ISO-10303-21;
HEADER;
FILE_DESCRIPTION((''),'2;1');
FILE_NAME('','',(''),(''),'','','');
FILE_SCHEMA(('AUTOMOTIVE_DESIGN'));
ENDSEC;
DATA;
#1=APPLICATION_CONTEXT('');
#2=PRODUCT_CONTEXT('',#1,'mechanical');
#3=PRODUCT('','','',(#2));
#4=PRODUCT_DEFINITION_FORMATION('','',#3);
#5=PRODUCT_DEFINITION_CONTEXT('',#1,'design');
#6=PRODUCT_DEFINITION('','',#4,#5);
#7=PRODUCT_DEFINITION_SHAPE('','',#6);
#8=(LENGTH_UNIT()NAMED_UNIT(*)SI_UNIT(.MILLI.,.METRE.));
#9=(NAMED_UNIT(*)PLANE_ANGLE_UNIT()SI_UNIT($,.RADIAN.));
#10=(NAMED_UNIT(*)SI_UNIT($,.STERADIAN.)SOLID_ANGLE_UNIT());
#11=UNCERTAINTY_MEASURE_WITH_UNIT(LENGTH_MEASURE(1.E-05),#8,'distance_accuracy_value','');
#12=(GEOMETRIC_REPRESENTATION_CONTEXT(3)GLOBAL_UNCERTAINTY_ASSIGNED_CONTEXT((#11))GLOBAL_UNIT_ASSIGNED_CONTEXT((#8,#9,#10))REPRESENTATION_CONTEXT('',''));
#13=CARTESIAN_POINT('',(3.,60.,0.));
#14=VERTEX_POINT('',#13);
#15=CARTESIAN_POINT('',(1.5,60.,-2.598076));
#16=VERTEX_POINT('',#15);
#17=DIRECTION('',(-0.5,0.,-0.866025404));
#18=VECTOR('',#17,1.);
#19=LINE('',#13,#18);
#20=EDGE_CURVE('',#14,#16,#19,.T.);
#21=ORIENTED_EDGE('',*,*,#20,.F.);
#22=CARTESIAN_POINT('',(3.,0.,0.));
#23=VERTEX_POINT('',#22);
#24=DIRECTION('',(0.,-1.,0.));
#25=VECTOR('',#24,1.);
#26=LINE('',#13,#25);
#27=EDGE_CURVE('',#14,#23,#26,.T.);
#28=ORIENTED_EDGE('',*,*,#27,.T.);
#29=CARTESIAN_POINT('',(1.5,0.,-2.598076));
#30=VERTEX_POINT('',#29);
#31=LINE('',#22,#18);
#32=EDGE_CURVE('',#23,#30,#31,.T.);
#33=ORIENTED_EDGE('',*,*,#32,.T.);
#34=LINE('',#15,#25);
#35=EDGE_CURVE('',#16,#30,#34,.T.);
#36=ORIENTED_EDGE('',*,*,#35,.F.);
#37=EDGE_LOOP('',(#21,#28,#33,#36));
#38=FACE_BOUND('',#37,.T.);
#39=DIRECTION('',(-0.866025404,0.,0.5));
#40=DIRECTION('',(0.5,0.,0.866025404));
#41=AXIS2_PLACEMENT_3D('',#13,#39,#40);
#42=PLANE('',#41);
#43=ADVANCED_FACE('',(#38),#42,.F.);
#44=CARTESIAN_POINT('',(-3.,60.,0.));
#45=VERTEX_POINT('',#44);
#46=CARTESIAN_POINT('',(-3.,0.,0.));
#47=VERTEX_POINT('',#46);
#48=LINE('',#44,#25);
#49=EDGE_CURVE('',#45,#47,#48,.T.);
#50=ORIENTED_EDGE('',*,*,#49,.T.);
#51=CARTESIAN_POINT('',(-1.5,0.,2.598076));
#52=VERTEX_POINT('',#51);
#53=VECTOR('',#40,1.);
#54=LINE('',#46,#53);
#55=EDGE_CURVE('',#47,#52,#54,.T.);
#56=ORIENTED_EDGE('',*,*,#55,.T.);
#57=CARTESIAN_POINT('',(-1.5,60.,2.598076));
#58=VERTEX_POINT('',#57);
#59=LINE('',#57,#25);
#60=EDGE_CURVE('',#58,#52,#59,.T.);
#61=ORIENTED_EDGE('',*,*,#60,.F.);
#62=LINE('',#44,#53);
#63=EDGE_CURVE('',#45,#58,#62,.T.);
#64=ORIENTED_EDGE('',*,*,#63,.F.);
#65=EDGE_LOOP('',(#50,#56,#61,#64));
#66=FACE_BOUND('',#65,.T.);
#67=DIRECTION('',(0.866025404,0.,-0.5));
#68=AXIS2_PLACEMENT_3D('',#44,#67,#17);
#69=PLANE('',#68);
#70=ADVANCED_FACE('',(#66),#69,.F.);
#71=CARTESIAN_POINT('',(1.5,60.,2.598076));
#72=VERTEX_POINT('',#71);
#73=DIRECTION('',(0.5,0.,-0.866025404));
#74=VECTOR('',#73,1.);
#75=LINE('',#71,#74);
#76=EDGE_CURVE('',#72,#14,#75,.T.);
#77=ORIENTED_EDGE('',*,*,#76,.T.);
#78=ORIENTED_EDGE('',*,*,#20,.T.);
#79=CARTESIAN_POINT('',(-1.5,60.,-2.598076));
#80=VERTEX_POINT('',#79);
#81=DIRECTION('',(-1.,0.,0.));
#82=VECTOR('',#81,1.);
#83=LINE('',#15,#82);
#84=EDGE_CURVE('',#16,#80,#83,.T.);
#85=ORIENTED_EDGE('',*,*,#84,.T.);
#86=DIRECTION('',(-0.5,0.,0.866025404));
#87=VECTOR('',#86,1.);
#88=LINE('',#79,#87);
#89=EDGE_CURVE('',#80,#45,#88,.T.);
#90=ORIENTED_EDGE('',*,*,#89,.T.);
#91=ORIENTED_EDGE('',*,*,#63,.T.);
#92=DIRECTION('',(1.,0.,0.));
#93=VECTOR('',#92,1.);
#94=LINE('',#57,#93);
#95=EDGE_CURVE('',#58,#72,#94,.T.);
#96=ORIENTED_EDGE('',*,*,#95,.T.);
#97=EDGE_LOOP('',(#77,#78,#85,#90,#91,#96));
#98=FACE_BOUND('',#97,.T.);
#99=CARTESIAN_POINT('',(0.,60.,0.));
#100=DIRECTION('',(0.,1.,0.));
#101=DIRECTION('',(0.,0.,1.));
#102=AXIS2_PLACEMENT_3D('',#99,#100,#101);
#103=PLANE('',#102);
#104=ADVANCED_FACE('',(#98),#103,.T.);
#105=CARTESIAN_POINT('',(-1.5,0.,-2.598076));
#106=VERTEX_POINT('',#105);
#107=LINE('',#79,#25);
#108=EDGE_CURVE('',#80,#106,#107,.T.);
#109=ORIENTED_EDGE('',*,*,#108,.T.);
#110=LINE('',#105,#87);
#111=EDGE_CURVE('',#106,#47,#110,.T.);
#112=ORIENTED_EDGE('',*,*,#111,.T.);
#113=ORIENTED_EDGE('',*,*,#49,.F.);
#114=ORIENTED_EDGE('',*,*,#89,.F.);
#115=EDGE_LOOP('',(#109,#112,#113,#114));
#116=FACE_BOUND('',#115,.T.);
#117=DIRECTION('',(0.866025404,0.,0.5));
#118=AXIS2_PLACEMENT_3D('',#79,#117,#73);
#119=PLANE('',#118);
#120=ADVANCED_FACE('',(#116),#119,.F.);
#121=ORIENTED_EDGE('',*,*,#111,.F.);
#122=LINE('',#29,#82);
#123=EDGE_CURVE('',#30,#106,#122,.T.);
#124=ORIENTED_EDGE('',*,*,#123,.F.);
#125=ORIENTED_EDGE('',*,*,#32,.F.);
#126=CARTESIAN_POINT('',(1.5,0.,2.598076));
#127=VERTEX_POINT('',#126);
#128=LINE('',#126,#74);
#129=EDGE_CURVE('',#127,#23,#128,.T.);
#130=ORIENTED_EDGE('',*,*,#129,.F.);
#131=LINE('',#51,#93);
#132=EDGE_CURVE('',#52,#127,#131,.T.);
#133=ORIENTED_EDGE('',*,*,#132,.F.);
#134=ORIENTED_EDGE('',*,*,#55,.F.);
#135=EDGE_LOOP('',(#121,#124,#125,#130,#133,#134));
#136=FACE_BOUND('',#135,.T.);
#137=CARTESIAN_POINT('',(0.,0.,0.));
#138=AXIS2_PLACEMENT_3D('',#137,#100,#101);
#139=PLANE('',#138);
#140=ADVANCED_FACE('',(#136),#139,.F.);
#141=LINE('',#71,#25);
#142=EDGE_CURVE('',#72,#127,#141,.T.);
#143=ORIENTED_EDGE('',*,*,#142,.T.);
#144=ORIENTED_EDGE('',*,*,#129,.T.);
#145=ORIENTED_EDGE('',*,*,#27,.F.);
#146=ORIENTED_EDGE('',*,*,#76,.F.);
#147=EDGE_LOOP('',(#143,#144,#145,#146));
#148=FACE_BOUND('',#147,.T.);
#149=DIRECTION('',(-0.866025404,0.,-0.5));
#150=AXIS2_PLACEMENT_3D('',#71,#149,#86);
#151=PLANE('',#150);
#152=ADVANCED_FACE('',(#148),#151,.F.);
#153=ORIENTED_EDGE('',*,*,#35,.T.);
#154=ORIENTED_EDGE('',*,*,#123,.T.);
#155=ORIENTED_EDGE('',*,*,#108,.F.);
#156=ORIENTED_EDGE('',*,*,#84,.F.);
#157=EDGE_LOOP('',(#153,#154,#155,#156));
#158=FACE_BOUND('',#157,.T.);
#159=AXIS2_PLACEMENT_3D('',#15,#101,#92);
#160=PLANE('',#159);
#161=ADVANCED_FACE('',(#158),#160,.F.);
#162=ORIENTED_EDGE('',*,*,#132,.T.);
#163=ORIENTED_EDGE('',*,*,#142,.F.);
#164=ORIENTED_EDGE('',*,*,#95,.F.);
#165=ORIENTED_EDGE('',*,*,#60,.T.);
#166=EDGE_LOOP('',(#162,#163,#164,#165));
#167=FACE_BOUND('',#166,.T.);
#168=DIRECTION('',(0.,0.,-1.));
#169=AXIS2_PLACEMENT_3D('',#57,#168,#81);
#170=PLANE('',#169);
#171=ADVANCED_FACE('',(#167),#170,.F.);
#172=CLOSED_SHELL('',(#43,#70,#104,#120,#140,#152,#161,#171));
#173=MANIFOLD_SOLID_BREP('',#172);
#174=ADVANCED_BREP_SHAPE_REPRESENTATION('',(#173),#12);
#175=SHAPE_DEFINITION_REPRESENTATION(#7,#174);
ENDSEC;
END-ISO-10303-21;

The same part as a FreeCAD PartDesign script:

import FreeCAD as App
import Part
import Sketcher
from FreeCAD import Vector
Q = App.Units.Quantity

doc = App.newDocument("Part")
body = doc.addObject("PartDesign::Body", "Body")

# Sketch on XZ plane
sketch1 = body.newObject("Sketcher::SketchObject", "Sketch")
sketch1.AttachmentSupport = (doc.getObject("XZ_Plane"), [""])
sketch1.MapMode = "FlatFace"
sketch1.addGeometry(Part.LineSegment(Vector(3, 0, 0), Vector(1.5, -2.598076, 0)), False)
sketch1.addGeometry(Part.LineSegment(Vector(1.5, -2.598076, 0), Vector(-1.5, -2.598076, 0)), False)
sketch1.addGeometry(Part.LineSegment(Vector(-1.5, -2.598076, 0), Vector(-3, 0, 0)), False)
sketch1.addGeometry(Part.LineSegment(Vector(-3, 0, 0), Vector(-1.5, 2.598076, 0)), False)
sketch1.addGeometry(Part.LineSegment(Vector(-1.5, 2.598076, 0), Vector(1.5, 2.598076, 0)), False)
sketch1.addGeometry(Part.LineSegment(Vector(1.5, 2.598076, 0), Vector(3, 0, 0)), False)
sketch1.addConstraint(Sketcher.Constraint("Coincident", 0, 2, 1, 1))
sketch1.addConstraint(Sketcher.Constraint("Coincident", 1, 2, 2, 1))
sketch1.addConstraint(Sketcher.Constraint("Coincident", 2, 2, 3, 1))
sketch1.addConstraint(Sketcher.Constraint("Coincident", 3, 2, 4, 1))
sketch1.addConstraint(Sketcher.Constraint("Coincident", 4, 2, 5, 1))
sketch1.addConstraint(Sketcher.Constraint("Coincident", 5, 2, 0, 1))
sketch1.addConstraint(Sketcher.Constraint("Horizontal", 1))
sketch1.addConstraint(Sketcher.Constraint("Horizontal", 4))
sketch1.addConstraint(Sketcher.Constraint("Symmetric", 0, 2, 3, 2, -1, 1))
sketch1.addConstraint(Sketcher.Constraint("Symmetric", 2, 2, 5, 2, -1, 1))
sketch1.addConstraint(Sketcher.Constraint("PointOnObject", 2, 2, -1))
sketch1.addConstraint(Sketcher.Constraint("Parallel", 2, 5))
sketch1.addConstraint(Sketcher.Constraint("Vertical", 1, 2, 3, 2))
sketch1.addConstraint(Sketcher.Constraint("DistanceX", 1, 2, 1, 1, Q("3 mm")))
sketch1.addConstraint(Sketcher.Constraint("Angle", 0, Q("-120 deg")))
sketch1.addConstraint(Sketcher.Constraint("Distance", 0, Q("3 mm")))
pad1 = body.newObject("PartDesign::Pad", "Pad")
pad1.Profile = sketch1
pad1.Length = 60
pad1.Reversed = True

doc.recompute()
